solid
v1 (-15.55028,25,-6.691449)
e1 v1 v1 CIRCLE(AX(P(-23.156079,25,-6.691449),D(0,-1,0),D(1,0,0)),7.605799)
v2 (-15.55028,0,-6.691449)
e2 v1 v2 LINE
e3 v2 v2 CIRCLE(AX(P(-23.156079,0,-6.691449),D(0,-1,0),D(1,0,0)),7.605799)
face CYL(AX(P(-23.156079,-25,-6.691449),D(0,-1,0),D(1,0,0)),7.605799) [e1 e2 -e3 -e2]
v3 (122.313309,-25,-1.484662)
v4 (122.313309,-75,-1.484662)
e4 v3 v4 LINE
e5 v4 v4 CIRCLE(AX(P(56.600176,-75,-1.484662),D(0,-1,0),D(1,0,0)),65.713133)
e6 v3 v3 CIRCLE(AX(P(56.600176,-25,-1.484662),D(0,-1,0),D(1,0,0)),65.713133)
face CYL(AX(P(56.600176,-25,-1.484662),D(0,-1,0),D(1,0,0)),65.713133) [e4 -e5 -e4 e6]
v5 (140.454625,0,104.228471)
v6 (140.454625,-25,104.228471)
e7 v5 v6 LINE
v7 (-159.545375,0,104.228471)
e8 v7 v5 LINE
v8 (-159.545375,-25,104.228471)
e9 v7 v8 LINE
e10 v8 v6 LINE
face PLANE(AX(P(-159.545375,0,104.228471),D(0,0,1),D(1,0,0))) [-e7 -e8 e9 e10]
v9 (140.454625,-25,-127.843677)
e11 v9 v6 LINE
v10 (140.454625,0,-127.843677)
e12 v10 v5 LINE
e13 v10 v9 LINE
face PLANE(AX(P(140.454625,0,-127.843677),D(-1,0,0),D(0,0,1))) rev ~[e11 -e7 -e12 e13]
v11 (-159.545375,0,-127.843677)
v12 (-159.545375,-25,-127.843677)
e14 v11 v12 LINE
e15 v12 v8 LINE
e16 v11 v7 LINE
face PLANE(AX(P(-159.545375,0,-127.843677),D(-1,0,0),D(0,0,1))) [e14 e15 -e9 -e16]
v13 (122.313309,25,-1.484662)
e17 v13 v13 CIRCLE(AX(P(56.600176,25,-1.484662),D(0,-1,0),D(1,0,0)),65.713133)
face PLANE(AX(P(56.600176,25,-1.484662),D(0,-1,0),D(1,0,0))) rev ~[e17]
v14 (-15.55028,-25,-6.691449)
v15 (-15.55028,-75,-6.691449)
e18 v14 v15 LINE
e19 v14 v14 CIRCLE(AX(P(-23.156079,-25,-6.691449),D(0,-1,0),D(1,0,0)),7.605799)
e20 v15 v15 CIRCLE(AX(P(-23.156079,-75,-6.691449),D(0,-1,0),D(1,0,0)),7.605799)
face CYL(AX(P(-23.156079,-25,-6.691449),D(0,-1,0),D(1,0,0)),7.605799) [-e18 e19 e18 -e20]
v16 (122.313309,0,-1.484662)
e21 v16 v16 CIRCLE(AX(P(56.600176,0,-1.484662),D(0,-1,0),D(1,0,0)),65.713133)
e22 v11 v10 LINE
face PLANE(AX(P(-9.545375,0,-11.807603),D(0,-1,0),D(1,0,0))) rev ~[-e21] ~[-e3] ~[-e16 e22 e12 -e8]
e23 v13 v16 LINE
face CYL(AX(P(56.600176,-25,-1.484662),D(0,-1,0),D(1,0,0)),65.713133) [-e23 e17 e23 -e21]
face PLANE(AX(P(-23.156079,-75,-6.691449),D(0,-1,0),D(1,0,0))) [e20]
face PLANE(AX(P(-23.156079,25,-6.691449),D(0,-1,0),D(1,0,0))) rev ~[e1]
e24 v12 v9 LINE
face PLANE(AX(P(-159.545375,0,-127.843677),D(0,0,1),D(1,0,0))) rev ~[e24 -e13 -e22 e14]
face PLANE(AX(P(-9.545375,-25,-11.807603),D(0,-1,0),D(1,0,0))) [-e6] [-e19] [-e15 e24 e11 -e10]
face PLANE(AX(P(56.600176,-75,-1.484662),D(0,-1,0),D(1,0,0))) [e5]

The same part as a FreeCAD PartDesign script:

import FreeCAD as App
import Part
import Sketcher
from FreeCAD import Vector
Q = App.Units.Quantity

doc = App.newDocument("Part")
body = doc.addObject("PartDesign::Body", "Body")

sketch1 = body.newObject("Sketcher::SketchObject", "Sketch")
sketch1.AttachmentSupport = (doc.getObject("XZ_Plane"), [""])
sketch1.MapMode = "FlatFace"
sketch1.addGeometry([
    Part.LineSegment(Vector(-160, 104, 0), Vector(-160, -128, 0)),
    Part.LineSegment(Vector(-160, -128, 0), Vector(140, -128, 0)),
    Part.LineSegment(Vector(140, -128, 0), Vector(140, 104, 0)),
    Part.LineSegment(Vector(140, 104, 0), Vector(-160, 104, 0)),
], False)
sketch1.addConstraint([
    Sketcher.Constraint("Coincident", 0, 2, 1, 1),
    Sketcher.Constraint("Coincident", 1, 2, 2, 1),
    Sketcher.Constraint("Coincident", 2, 2, 3, 1),
    Sketcher.Constraint("Coincident", 3, 2, 0, 1),
    Sketcher.Constraint("Vertical", 0),
    Sketcher.Constraint("Horizontal", 1),
    Sketcher.Constraint("Vertical", 2),
    Sketcher.Constraint("Horizontal", 3),
    Sketcher.Constraint("DistanceX", 1, 1, 1, 2, Q("300 mm")),
    Sketcher.Constraint("DistanceY", 0, 2, 0, 1, Q("232.072148 mm")),
    Sketcher.Constraint("DistanceY", -1, 1, 2, 2, Q("104.228471 mm")),
    Sketcher.Constraint("DistanceX", 0, 2, -1, 1, Q("159.545375 mm")),
])
pad1 = body.newObject("PartDesign::Pad", "Pad")
pad1.Profile = sketch1
pad1.Length = 25

sketch2 = body.newObject("Sketcher::SketchObject", "Sketch001")
sketch2.AttachmentSupport = (doc.getObject("XZ_Plane"), [""])
sketch2.MapMode = "FlatFace"
sketch2.AttachmentOffset = App.Placement(Vector(0, 0, 25), App.Rotation())
sketch2.addGeometry(Part.Circle(Vector(-23, -7, 0), Vector(0, 0, 1), 8), False)
sketch2.addConstraint([
    Sketcher.Constraint("Diameter", 0, Q("15.211598 mm")),
    Sketcher.Constraint("DistanceX", 0, 3, -1, 1, Q("23.156079 mm")),
    Sketcher.Constraint("DistanceY", 0, 3, -1, 1, Q("6.691449 mm")),
])
pad2 = body.newObject("PartDesign::Pad", "Pad001")
pad2.Profile = sketch2
pad2.Length = 100
pad2.Midplane = True

sketch3 = body.newObject("Sketcher::SketchObject", "Sketch002")
sketch3.AttachmentSupport = (doc.getObject("XZ_Plane"), [""])
sketch3.MapMode = "FlatFace"
sketch3.AttachmentOffset = App.Placement(Vector(0, 0, 25), App.Rotation())
sketch3.addGeometry(Part.Circle(Vector(57, -1, 0), Vector(0, 0, 1), 66), False)
sketch3.addConstraint([
    Sketcher.Constraint("Diameter", 0, Q("131.426266 mm")),
    Sketcher.Constraint("DistanceY", 0, 3, -1, 1, Q("1.484662 mm")),
    Sketcher.Constraint("DistanceX", -1, 1, 0, 3, Q("56.600176 mm")),
])
pad3 = body.newObject("PartDesign::Pad", "Pad002")
pad3.Profile = sketch3
pad3.Length = 100
pad3.Midplane = True

doc.recompute()
